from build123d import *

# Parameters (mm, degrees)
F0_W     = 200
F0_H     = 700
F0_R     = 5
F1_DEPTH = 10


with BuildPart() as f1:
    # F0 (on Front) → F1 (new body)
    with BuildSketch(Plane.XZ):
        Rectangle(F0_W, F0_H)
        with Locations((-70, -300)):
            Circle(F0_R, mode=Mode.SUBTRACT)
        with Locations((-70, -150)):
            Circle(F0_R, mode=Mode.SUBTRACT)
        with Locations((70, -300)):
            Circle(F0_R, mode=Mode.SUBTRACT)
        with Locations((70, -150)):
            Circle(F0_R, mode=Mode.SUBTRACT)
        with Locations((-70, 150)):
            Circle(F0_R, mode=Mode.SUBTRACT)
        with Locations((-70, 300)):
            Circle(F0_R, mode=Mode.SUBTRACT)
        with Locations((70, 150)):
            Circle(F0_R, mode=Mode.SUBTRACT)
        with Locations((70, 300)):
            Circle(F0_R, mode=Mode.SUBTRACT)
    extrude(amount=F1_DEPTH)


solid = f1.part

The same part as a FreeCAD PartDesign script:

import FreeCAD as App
import Part
import Sketcher
from FreeCAD import Vector
Q = App.Units.Quantity


def add_polygon(sketch, points):
    """Adds a closed chain of lines whose ends are joined by coincident constraints."""
    first, n = sketch.GeometryCount, len(points)
    for a, b in zip(points, points[1:] + points[:1]):
        sketch.addGeometry(Part.LineSegment(App.Vector(*a, 0), App.Vector(*b, 0)), False)
    for i in range(n):
        sketch.addConstraint(Sketcher.Constraint("Coincident", first + i, 2, first + (i + 1) % n, 1))

doc = App.newDocument("Part")
body = doc.addObject("PartDesign::Body", "Body")

# Sketch on XZ plane
sketch1 = body.newObject("Sketcher::SketchObject", "Sketch")
sketch1.AttachmentSupport = (doc.getObject("XZ_Plane"), [""])
sketch1.MapMode = "FlatFace"
add_polygon(sketch1, [(-100, 350), (-100, -350), (100, -350), (100, 350)])  # lines 0-3
sketch1.addGeometry(Part.Circle(Vector(-70, -300, 0), Vector(0, 0, 1), 5), False)  # 4
sketch1.addGeometry(Part.Circle(Vector(-70, -150, 0), Vector(0, 0, 1), 5), False)  # 5
sketch1.addGeometry(Part.Circle(Vector(70, -300, 0), Vector(0, 0, 1), 5), False)  # 6
sketch1.addGeometry(Part.Circle(Vector(70, -150, 0), Vector(0, 0, 1), 5), False)  # 7
sketch1.addGeometry(Part.Circle(Vector(-70, 150, 0), Vector(0, 0, 1), 5), False)  # 8
sketch1.addGeometry(Part.Circle(Vector(-70, 300, 0), Vector(0, 0, 1), 5), False)  # 9
sketch1.addGeometry(Part.Circle(Vector(70, 150, 0), Vector(0, 0, 1), 5), False)  # 10
sketch1.addGeometry(Part.Circle(Vector(70, 300, 0), Vector(0, 0, 1), 5), False)  # 11
sketch1.addConstraint([
    Sketcher.Constraint("Vertical", 0),
    Sketcher.Constraint("Horizontal", 1),
    Sketcher.Constraint("Vertical", 2),
    Sketcher.Constraint("Horizontal", 3),
    Sketcher.Constraint("Equal", 4, 5),
    Sketcher.Constraint("Equal", 5, 6),
    Sketcher.Constraint("Equal", 6, 7),
    Sketcher.Constraint("Equal", 7, 8),
    Sketcher.Constraint("Equal", 8, 9),
    Sketcher.Constraint("Equal", 9, 10),
    Sketcher.Constraint("Equal", 10, 11),
    Sketcher.Constraint("Symmetric", 7, 3, 8, 3, -1, 1),
    Sketcher.Constraint("Symmetric", 6, 3, 9, 3, -1, 1),
    Sketcher.Constraint("Symmetric", 5, 3, 10, 3, -1, 1),
    Sketcher.Constraint("Symmetric", 4, 3, 11, 3, -1, 1),
    Sketcher.Constraint("Symmetric", 0, 2, 2, 2, -1, 1),
    Sketcher.Constraint("Symmetric", 4, 3, 6, 3, -2),
    Sketcher.Constraint("Symmetric", 5, 3, 7, 3, -2),
    Sketcher.Constraint("Vertical", 4, 3, 5, 3),
    Sketcher.Constraint("Diameter", 4, Q("10 mm")),
    Sketcher.Constraint("DistanceX", 1, 1, 1, 2, Q("200 mm")),
    Sketcher.Constraint("DistanceY", 0, 2, 0, 1, Q("700 mm")),
    Sketcher.Constraint("DistanceX", 4, 3, -1, 1, Q("70 mm")),
    Sketcher.Constraint("DistanceY", 4, 3, -1, 1, Q("300 mm")),
    Sketcher.Constraint("DistanceY", 5, 3, -1, 1, Q("150 mm")),
])
pad1 = body.newObject("PartDesign::Pad", "Pad")
pad1.Profile = sketch1
pad1.Length = 10

doc.recompute()
